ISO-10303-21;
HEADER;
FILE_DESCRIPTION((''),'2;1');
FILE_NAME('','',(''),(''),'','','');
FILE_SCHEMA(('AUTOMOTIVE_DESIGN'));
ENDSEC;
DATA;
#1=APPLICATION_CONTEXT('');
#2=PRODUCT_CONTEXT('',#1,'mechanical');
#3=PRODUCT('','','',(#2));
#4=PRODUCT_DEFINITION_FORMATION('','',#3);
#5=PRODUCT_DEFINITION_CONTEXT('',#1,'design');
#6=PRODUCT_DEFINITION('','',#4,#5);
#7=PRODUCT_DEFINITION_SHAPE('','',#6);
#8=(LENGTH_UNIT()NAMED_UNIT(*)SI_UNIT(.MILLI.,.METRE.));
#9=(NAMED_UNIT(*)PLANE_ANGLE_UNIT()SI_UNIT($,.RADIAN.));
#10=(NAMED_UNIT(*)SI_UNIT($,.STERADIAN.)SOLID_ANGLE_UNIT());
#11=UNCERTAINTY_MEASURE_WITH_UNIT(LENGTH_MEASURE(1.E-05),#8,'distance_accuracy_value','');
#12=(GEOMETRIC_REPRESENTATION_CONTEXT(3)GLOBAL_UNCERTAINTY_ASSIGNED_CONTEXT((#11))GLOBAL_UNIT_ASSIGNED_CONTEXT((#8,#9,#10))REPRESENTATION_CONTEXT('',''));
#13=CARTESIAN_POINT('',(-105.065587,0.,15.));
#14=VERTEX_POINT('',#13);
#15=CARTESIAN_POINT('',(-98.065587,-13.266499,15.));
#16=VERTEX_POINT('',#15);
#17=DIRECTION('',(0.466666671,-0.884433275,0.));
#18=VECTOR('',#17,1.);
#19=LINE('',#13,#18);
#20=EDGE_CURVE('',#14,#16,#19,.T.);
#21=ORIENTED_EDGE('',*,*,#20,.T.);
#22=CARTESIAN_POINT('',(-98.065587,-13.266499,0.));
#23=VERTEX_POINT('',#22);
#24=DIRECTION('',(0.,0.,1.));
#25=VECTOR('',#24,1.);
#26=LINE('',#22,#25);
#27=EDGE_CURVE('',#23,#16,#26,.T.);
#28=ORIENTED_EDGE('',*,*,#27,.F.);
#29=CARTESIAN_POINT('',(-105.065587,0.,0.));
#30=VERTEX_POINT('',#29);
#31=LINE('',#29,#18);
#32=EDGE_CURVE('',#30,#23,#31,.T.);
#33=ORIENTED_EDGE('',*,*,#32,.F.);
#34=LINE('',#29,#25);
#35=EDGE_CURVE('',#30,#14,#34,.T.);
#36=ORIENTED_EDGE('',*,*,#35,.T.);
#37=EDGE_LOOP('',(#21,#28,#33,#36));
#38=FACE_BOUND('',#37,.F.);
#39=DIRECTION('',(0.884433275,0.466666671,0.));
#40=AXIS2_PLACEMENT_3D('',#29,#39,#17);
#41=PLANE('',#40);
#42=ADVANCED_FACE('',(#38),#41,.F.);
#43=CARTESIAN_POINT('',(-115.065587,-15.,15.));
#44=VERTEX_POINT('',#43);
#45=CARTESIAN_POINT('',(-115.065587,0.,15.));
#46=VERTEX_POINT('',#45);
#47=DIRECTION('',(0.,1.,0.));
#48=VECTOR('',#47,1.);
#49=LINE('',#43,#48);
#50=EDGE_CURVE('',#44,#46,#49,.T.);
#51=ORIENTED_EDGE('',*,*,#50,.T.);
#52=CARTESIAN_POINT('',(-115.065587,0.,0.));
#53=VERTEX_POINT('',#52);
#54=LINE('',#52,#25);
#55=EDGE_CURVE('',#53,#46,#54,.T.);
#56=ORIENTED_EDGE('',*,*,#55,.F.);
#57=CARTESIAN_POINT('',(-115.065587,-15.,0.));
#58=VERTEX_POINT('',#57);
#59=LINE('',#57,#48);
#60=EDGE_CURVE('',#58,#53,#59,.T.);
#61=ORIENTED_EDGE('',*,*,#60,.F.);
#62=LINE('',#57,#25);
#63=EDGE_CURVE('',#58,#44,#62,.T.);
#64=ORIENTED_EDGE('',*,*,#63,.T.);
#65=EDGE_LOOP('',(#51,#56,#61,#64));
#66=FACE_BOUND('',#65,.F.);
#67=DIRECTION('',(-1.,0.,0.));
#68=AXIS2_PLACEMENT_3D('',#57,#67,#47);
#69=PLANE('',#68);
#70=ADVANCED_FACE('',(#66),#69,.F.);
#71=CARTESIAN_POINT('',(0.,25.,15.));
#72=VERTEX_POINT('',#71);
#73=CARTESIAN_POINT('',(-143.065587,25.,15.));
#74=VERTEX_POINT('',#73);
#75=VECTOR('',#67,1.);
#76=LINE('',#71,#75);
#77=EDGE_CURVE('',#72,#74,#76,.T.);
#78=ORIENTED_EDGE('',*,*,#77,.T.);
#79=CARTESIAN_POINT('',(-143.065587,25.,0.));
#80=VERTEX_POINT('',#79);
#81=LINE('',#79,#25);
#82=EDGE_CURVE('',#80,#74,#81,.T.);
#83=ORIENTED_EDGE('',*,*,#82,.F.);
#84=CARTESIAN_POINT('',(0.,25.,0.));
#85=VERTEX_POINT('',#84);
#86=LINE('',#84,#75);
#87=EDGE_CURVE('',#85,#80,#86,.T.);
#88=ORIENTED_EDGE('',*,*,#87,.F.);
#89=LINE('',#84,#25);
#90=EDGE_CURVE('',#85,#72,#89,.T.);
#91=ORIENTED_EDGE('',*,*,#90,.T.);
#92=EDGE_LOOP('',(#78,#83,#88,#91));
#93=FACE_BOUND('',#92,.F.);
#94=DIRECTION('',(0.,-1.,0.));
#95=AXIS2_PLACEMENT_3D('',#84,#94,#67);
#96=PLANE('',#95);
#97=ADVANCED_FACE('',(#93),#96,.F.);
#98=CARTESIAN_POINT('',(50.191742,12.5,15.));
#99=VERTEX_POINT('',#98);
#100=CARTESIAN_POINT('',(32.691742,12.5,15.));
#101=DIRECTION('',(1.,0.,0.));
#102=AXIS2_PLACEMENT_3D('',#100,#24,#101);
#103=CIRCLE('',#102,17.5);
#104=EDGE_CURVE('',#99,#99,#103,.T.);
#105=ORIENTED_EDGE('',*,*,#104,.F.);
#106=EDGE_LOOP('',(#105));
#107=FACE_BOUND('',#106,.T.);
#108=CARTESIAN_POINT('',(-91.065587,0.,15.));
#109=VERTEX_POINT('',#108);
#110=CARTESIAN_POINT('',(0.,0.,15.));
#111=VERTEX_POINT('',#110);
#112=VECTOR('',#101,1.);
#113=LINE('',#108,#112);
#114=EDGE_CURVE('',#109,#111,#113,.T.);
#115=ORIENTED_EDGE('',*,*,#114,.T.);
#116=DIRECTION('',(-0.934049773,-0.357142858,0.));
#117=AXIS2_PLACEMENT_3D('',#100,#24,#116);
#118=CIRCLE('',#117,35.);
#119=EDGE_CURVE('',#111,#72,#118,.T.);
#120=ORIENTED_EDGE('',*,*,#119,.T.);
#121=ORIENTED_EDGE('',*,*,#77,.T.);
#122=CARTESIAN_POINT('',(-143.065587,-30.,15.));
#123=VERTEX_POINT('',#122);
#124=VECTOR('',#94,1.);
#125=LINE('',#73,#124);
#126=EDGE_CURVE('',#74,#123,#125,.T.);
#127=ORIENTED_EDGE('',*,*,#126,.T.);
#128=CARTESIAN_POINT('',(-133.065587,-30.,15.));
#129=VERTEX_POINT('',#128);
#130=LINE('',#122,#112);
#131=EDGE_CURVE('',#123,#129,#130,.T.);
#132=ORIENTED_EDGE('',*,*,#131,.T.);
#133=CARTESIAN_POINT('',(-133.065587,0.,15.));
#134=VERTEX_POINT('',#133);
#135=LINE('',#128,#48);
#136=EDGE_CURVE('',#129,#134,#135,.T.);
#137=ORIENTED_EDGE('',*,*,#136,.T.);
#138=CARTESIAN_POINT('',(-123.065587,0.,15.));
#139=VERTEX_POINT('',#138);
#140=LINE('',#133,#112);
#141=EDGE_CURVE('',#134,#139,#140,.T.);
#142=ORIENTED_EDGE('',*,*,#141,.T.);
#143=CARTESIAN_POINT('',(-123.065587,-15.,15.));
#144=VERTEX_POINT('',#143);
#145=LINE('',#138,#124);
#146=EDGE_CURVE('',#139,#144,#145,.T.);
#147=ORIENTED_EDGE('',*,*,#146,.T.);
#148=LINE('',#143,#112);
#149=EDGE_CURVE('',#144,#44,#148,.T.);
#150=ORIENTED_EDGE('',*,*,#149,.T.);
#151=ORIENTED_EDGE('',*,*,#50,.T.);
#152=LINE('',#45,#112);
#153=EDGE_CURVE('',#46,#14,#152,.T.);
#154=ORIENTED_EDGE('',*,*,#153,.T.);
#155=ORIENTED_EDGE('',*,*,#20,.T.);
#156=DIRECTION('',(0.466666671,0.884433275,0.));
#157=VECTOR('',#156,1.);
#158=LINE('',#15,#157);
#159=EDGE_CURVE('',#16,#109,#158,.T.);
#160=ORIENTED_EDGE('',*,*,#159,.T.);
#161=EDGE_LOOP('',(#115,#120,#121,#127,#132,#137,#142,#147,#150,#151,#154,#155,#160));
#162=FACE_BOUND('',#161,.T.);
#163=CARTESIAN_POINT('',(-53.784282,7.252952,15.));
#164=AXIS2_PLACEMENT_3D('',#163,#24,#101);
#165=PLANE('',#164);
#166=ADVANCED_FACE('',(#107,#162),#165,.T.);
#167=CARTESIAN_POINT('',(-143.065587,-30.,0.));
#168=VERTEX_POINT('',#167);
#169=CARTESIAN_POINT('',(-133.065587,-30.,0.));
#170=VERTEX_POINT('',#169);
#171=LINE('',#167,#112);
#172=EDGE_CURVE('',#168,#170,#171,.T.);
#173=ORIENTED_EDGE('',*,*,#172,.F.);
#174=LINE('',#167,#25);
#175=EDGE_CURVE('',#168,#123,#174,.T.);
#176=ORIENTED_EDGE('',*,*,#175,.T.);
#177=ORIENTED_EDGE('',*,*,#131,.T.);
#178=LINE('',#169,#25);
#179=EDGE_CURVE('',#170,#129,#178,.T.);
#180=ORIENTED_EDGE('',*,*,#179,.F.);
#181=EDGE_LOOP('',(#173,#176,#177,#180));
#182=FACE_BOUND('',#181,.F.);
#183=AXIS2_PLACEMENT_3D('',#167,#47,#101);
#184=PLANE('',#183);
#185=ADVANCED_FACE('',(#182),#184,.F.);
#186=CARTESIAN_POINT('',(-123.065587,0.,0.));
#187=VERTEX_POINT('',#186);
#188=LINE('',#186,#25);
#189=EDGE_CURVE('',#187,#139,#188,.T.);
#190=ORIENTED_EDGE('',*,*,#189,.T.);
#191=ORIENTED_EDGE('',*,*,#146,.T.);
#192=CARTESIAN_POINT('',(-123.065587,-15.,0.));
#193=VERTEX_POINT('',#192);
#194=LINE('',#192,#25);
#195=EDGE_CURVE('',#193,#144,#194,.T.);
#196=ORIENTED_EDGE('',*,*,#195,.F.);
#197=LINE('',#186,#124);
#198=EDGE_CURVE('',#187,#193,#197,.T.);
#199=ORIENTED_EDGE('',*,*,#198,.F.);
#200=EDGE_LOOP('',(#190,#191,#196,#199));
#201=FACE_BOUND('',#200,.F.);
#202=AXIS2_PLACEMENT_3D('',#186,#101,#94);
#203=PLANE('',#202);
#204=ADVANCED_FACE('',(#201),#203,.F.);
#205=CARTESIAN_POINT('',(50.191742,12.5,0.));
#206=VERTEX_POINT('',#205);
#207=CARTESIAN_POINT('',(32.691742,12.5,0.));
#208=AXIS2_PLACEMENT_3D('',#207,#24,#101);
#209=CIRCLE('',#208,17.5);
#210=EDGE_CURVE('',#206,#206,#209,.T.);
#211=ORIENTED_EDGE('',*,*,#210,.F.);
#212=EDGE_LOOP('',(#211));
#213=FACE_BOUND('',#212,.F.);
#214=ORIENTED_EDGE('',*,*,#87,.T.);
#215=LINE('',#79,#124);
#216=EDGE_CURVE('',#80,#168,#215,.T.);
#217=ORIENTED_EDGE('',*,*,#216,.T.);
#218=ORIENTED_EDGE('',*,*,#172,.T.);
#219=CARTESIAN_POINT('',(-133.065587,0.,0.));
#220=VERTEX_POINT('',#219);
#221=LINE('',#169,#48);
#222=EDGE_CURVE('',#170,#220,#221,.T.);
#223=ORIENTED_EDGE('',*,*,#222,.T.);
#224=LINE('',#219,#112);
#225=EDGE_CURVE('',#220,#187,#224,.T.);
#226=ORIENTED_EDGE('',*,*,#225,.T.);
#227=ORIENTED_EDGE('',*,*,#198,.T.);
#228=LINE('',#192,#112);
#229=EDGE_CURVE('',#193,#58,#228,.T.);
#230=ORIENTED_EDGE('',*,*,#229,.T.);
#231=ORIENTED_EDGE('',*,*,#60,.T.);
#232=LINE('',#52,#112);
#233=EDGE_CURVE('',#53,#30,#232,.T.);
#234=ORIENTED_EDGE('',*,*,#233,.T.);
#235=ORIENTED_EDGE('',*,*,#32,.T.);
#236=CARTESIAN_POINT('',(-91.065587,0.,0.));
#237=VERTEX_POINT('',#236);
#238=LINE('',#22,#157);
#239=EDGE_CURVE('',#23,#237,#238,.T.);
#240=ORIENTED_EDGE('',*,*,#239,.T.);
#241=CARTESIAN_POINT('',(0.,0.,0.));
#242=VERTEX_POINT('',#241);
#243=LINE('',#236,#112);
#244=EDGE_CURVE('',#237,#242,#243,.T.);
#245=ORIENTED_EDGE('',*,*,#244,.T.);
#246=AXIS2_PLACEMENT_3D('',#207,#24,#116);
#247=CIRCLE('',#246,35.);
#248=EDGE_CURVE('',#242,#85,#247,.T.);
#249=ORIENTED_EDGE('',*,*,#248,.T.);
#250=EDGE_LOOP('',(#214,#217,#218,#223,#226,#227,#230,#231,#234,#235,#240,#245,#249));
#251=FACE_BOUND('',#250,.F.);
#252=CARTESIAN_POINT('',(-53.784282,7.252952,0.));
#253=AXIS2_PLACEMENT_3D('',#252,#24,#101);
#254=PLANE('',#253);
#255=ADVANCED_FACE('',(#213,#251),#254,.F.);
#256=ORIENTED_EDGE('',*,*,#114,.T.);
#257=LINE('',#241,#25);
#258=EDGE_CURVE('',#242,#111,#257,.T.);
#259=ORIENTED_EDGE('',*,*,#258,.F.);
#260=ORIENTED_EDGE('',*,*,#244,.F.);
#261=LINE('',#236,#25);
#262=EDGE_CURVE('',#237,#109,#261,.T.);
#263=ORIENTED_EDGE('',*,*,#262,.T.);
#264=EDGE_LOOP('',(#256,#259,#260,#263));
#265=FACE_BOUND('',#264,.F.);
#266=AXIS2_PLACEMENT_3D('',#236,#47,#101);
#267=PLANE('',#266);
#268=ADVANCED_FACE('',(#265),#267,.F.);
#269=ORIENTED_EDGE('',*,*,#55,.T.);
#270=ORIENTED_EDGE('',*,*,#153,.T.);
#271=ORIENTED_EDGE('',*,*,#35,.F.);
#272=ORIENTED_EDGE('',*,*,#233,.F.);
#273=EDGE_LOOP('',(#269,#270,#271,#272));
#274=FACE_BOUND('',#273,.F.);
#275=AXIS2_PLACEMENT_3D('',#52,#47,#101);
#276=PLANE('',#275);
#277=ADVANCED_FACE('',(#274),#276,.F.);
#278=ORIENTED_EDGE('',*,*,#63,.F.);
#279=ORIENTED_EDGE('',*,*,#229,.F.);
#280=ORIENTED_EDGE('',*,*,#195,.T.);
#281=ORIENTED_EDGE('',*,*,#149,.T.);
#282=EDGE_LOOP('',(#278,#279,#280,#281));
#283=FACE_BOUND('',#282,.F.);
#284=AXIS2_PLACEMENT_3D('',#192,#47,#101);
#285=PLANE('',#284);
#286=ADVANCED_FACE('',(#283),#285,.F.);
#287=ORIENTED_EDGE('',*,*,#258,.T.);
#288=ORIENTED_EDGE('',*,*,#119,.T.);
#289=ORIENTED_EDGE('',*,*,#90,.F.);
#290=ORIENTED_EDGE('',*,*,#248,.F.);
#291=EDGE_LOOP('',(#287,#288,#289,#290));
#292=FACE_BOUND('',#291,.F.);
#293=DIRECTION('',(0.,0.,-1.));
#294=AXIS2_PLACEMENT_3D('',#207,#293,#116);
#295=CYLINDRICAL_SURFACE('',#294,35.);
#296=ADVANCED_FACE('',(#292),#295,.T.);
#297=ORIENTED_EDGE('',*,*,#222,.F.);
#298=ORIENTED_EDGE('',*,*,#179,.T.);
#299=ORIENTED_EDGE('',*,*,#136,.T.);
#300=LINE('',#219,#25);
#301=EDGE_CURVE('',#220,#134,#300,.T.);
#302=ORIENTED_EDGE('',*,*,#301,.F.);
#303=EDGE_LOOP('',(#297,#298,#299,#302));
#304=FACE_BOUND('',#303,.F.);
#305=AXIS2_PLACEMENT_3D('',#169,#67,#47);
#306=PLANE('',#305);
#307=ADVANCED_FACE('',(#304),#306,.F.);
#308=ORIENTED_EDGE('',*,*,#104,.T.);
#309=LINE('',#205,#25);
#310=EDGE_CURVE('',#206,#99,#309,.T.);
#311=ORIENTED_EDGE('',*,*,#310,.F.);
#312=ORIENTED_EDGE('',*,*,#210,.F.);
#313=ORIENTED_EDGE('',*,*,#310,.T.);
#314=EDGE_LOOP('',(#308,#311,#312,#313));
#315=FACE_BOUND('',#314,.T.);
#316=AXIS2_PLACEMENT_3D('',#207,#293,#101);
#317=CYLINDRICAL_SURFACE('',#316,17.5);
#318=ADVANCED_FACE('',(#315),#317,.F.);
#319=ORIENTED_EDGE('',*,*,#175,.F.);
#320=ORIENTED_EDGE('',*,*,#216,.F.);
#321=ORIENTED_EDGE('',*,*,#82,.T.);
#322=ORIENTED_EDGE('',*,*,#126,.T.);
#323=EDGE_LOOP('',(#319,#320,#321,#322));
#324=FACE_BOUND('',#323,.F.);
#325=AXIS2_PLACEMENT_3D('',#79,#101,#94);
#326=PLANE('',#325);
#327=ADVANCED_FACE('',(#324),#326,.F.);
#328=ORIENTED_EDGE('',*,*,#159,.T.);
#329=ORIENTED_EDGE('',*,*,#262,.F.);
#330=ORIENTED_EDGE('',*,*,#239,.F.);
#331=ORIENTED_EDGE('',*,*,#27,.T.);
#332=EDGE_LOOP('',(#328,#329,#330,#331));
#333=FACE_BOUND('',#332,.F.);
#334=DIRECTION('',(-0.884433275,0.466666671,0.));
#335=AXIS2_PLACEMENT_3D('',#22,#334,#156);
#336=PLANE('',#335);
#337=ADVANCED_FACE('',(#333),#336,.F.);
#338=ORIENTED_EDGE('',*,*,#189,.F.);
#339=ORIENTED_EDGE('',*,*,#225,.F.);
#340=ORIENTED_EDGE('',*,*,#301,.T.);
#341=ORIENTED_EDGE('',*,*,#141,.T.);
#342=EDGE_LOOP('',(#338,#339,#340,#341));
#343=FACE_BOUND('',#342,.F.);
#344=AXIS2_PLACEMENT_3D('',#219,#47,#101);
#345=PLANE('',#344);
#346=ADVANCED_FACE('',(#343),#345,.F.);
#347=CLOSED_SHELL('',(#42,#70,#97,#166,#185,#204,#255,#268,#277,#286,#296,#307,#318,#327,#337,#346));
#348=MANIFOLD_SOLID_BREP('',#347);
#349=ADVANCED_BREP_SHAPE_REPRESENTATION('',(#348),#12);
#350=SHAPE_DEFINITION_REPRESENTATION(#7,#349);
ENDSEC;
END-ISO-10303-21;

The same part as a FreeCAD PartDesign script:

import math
import FreeCAD as App
import Part
import Sketcher
Q = App.Units.Quantity

doc = App.newDocument("Part")
body = doc.addObject("PartDesign::Body", "Body")

# Sketch on XY plane
sketch1 = body.newObject("Sketcher::SketchObject", "Sketch")
sketch1.AttachmentSupport = (doc.getObject("XY_Plane"), [""])
sketch1.MapMode = "FlatFace"
sketch1.addGeometry(Part.LineSegment(App.Vector(-91, 0, 0), App.Vector(0, 0, 0)), False)
sketch1.addGeometry(Part.ArcOfCircle(Part.Circle(App.Vector(33, 12, 0), App.Vector(0, 0, 1), 35), math.radians(-159), math.radians(159)), False)
sketch1.addGeometry(Part.LineSegment(App.Vector(0, 25, 0), App.Vector(-143, 25, 0)), False)
sketch1.addGeometry(Part.LineSegment(App.Vector(-143, 25, 0), App.Vector(-143, -30, 0)), False)
sketch1.addGeometry(Part.LineSegment(App.Vector(-143, -30, 0), App.Vector(-133, -30, 0)), False)
sketch1.addGeometry(Part.LineSegment(App.Vector(-133, -30, 0), App.Vector(-133, 0, 0)), False)
sketch1.addGeometry(Part.LineSegment(App.Vector(-133, 0, 0), App.Vector(-123, 0, 0)), False)
sketch1.addGeometry(Part.LineSegment(App.Vector(-123, 0, 0), App.Vector(-123, -15, 0)), False)
sketch1.addGeometry(Part.LineSegment(App.Vector(-123, -15, 0), App.Vector(-115, -15, 0)), False)
sketch1.addGeometry(Part.LineSegment(App.Vector(-115, -15, 0), App.Vector(-115, 0, 0)), False)
sketch1.addGeometry(Part.LineSegment(App.Vector(-115, 0, 0), App.Vector(-105, 0, 0)), False)
sketch1.addGeometry(Part.LineSegment(App.Vector(-105, 0, 0), App.Vector(-98, -13, 0)), False)
sketch1.addGeometry(Part.LineSegment(App.Vector(-98, -13, 0), App.Vector(-91, 0, 0)), False)
sketch1.addGeometry(Part.Circle(App.Vector(33, 12, 0), App.Vector(0, 0, 1), 18), False)
sketch1.addConstraint(Sketcher.Constraint("Coincident", 0, 2, 1, 1))
sketch1.addConstraint(Sketcher.Constraint("Coincident", 1, 2, 2, 1))
sketch1.addConstraint(Sketcher.Constraint("Coincident", 2, 2, 3, 1))
sketch1.addConstraint(Sketcher.Constraint("Coincident", 3, 2, 4, 1))
sketch1.addConstraint(Sketcher.Constraint("Coincident", 4, 2, 5, 1))
sketch1.addConstraint(Sketcher.Constraint("Coincident", 5, 2, 6, 1))
sketch1.addConstraint(Sketcher.Constraint("Coincident", 6, 2, 7, 1))
sketch1.addConstraint(Sketcher.Constraint("Coincident", 7, 2, 8, 1))
sketch1.addConstraint(Sketcher.Constraint("Coincident", 8, 2, 9, 1))
sketch1.addConstraint(Sketcher.Constraint("Coincident", 9, 2, 10, 1))
sketch1.addConstraint(Sketcher.Constraint("Coincident", 10, 2, 11, 1))
sketch1.addConstraint(Sketcher.Constraint("Coincident", 11, 2, 12, 1))
sketch1.addConstraint(Sketcher.Constraint("Coincident", 12, 2, 0, 1))
sketch1.addConstraint(Sketcher.Constraint("Horizontal", 0))
sketch1.addConstraint(Sketcher.Constraint("Horizontal", 2))
sketch1.addConstraint(Sketcher.Constraint("Vertical", 3))
sketch1.addConstraint(Sketcher.Constraint("Horizontal", 4))
sketch1.addConstraint(Sketcher.Constraint("Vertical", 5))
sketch1.addConstraint(Sketcher.Constraint("Horizontal", 6))
sketch1.addConstraint(Sketcher.Constraint("Vertical", 7))
sketch1.addConstraint(Sketcher.Constraint("Horizontal", 8))
sketch1.addConstraint(Sketcher.Constraint("Vertical", 9))
sketch1.addConstraint(Sketcher.Constraint("Horizontal", 10))
sketch1.addConstraint(Sketcher.Constraint("Coincident", 0, 2, -1, 1))
sketch1.addConstraint(Sketcher.Constraint("Coincident", 13, 3, 1, 3))
sketch1.addConstraint(Sketcher.Constraint("PointOnObject", 1, 2, -2))
sketch1.addConstraint(Sketcher.Constraint("PointOnObject", 5, 2, -1))
sketch1.addConstraint(Sketcher.Constraint("PointOnObject", 9, 2, -1))
sketch1.addConstraint(Sketcher.Constraint("Equal", 4, 6))
sketch1.addConstraint(Sketcher.Constraint("Equal", 6, 10))
sketch1.addConstraint(Sketcher.Constraint("Equal", 11, 12))
sketch1.addConstraint(Sketcher.Constraint("Diameter", 13, Q("35 mm")))
sketch1.addConstraint(Sketcher.Constraint("Radius", 1, Q("35 mm")))
sketch1.addConstraint(Sketcher.Constraint("DistanceX", 4, 1, 4, 2, Q("10 mm")))
sketch1.addConstraint(Sketcher.Constraint("DistanceX", 8, 1, 8, 2, Q("8 mm")))
sketch1.addConstraint(Sketcher.Constraint("DistanceY", 3, 2, 3, 1, Q("55 mm")))
sketch1.addConstraint(Sketcher.Constraint("DistanceY", 5, 1, 5, 2, Q("30 mm")))
sketch1.addConstraint(Sketcher.Constraint("DistanceY", 7, 2, 7, 1, Q("15 mm")))
sketch1.addConstraint(Sketcher.Constraint("Distance", 11, Q("15 mm")))
sketch1.addConstraint(Sketcher.Constraint("DistanceX", 10, 2, 11, 2, Q("7 mm")))
sketch1.addConstraint(Sketcher.Constraint("DistanceX", 0, 1, 0, 2, Q("91.065587 mm")))
pad1 = body.newObject("PartDesign::Pad", "Pad")
pad1.Profile = sketch1
pad1.Length = 15

doc.recompute()
